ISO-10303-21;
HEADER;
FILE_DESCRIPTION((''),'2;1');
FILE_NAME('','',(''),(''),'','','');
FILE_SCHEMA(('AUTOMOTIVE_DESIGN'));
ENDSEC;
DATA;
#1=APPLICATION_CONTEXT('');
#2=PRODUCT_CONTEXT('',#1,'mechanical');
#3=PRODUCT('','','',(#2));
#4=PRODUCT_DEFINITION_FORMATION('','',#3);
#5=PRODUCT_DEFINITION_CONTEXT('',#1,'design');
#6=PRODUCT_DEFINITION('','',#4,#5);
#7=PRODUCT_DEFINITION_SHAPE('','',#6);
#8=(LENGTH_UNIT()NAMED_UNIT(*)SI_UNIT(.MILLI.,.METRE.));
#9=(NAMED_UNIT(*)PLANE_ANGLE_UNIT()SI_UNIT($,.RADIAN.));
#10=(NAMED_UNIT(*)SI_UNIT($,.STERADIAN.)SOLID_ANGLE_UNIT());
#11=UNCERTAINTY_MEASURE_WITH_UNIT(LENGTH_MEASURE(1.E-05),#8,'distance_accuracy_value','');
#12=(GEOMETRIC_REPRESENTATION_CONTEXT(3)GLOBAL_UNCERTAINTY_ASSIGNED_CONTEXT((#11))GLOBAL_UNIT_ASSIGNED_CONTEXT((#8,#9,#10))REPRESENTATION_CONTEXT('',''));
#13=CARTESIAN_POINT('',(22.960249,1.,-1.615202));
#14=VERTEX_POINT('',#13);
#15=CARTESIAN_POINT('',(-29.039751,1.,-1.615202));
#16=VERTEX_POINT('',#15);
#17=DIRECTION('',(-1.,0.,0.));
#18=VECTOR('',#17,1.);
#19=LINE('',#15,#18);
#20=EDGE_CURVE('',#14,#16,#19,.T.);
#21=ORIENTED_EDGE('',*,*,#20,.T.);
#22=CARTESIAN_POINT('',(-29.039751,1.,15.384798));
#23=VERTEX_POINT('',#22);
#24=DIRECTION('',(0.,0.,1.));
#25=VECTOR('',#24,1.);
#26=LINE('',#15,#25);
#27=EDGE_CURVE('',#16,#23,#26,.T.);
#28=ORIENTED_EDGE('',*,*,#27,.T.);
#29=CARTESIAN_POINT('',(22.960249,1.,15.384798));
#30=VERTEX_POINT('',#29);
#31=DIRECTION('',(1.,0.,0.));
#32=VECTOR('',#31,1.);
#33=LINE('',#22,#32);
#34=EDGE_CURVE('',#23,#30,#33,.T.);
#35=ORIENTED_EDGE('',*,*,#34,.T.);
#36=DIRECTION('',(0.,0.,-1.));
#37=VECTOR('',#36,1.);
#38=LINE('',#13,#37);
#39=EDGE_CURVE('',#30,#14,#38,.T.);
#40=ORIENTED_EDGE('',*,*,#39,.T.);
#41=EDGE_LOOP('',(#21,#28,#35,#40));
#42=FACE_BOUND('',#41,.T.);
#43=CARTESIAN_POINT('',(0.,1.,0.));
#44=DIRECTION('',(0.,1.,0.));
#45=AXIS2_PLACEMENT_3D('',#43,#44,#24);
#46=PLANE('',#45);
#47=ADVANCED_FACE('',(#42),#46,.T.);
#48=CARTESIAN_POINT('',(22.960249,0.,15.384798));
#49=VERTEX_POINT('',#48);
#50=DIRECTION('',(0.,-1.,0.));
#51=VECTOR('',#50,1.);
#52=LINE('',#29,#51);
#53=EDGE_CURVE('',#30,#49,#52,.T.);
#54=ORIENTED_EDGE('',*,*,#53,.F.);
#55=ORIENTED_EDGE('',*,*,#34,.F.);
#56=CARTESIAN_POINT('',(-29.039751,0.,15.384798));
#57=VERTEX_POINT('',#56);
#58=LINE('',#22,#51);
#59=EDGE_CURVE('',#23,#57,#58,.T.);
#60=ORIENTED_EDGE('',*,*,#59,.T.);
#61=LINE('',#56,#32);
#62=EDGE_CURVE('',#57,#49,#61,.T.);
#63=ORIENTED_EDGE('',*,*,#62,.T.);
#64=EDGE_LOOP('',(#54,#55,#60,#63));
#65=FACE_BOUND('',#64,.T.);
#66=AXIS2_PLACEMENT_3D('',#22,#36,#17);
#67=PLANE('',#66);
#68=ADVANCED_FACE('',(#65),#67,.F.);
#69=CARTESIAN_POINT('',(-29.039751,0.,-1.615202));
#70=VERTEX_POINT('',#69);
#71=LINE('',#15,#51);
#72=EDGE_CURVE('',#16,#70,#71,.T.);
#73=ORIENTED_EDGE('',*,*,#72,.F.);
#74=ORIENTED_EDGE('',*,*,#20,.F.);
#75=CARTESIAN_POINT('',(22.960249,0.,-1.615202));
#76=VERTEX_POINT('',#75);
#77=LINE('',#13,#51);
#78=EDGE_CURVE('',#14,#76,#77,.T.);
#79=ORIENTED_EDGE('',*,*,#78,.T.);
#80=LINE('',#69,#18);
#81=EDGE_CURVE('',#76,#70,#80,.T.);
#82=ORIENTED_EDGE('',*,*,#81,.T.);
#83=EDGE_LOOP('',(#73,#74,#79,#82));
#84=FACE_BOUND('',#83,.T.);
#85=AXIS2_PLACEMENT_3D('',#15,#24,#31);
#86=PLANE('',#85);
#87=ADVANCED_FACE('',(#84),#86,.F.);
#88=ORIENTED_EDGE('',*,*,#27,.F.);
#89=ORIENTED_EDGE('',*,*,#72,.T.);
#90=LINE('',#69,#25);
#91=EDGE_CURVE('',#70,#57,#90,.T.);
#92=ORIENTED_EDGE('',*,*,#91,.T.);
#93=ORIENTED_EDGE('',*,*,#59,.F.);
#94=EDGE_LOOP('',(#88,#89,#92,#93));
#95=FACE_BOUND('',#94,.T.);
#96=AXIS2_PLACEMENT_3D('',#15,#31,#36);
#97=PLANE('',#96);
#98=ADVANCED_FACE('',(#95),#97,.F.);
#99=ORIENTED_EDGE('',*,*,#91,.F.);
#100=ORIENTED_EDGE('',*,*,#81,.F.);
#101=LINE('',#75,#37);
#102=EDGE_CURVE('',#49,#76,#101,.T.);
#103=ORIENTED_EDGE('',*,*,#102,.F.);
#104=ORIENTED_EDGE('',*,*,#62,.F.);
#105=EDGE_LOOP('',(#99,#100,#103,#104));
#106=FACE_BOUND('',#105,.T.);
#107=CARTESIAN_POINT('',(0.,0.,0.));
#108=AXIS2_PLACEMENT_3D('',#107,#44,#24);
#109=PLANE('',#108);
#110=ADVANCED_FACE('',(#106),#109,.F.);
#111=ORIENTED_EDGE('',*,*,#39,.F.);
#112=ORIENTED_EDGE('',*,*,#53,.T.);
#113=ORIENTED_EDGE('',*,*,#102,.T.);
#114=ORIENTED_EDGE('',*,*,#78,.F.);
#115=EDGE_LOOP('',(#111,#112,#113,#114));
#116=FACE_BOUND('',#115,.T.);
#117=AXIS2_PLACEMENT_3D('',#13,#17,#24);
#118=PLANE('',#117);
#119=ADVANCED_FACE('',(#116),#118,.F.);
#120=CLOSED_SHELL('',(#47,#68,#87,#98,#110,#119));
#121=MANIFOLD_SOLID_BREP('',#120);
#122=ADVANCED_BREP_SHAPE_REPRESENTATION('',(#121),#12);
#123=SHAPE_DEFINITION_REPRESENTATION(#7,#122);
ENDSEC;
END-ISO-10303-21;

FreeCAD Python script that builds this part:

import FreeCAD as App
import Part
import Sketcher


def add_polygon(sketch, points):
    """Adds a closed chain of lines whose ends are joined by coincident constraints."""
    first, n = sketch.GeometryCount, len(points)
    for a, b in zip(points, points[1:] + points[:1]):
        sketch.addGeometry(Part.LineSegment(App.Vector(*a, 0), App.Vector(*b, 0)), False)
    for i in range(n):
        sketch.addConstraint(Sketcher.Constraint("Coincident", first + i, 2, first + (i + 1) % n, 1))

doc = App.newDocument("Part")
body = doc.addObject("PartDesign::Body", "Body")

sketch1 = doc.addObject("Sketcher::SketchObject", "Sketch")
body.addObject(sketch1)
sketch1.AttachmentSupport = (doc.XZ_Plane, [""])
sketch1.MapMode = "FlatFace"
add_polygon(sketch1, [(-29, -2), (-29, 15), (23, 15), (23, -2)])
sketch1.addConstraint([
    Sketcher.Constraint("Vertical", 0),
    Sketcher.Constraint("Horizontal", 1),
    Sketcher.Constraint("Vertical", 2),
    Sketcher.Constraint("Horizontal", 3),
    Sketcher.Constraint("DistanceX", 1, 1, 1, 2, 52.0),
    Sketcher.Constraint("DistanceY", 0, 1, 0, 2, 17.0),
    Sketcher.Constraint("DistanceY", -1, 1, 0, 2, 15.384798),
    Sketcher.Constraint("DistanceX", 0, 2, -1, 1, 29.039751),
])
pad1 = doc.addObject("PartDesign::Pad", "Pad")
body.addObject(pad1)
pad1.Profile = sketch1
pad1.Length = 1
pad1.Reversed = True

doc.recompute()
